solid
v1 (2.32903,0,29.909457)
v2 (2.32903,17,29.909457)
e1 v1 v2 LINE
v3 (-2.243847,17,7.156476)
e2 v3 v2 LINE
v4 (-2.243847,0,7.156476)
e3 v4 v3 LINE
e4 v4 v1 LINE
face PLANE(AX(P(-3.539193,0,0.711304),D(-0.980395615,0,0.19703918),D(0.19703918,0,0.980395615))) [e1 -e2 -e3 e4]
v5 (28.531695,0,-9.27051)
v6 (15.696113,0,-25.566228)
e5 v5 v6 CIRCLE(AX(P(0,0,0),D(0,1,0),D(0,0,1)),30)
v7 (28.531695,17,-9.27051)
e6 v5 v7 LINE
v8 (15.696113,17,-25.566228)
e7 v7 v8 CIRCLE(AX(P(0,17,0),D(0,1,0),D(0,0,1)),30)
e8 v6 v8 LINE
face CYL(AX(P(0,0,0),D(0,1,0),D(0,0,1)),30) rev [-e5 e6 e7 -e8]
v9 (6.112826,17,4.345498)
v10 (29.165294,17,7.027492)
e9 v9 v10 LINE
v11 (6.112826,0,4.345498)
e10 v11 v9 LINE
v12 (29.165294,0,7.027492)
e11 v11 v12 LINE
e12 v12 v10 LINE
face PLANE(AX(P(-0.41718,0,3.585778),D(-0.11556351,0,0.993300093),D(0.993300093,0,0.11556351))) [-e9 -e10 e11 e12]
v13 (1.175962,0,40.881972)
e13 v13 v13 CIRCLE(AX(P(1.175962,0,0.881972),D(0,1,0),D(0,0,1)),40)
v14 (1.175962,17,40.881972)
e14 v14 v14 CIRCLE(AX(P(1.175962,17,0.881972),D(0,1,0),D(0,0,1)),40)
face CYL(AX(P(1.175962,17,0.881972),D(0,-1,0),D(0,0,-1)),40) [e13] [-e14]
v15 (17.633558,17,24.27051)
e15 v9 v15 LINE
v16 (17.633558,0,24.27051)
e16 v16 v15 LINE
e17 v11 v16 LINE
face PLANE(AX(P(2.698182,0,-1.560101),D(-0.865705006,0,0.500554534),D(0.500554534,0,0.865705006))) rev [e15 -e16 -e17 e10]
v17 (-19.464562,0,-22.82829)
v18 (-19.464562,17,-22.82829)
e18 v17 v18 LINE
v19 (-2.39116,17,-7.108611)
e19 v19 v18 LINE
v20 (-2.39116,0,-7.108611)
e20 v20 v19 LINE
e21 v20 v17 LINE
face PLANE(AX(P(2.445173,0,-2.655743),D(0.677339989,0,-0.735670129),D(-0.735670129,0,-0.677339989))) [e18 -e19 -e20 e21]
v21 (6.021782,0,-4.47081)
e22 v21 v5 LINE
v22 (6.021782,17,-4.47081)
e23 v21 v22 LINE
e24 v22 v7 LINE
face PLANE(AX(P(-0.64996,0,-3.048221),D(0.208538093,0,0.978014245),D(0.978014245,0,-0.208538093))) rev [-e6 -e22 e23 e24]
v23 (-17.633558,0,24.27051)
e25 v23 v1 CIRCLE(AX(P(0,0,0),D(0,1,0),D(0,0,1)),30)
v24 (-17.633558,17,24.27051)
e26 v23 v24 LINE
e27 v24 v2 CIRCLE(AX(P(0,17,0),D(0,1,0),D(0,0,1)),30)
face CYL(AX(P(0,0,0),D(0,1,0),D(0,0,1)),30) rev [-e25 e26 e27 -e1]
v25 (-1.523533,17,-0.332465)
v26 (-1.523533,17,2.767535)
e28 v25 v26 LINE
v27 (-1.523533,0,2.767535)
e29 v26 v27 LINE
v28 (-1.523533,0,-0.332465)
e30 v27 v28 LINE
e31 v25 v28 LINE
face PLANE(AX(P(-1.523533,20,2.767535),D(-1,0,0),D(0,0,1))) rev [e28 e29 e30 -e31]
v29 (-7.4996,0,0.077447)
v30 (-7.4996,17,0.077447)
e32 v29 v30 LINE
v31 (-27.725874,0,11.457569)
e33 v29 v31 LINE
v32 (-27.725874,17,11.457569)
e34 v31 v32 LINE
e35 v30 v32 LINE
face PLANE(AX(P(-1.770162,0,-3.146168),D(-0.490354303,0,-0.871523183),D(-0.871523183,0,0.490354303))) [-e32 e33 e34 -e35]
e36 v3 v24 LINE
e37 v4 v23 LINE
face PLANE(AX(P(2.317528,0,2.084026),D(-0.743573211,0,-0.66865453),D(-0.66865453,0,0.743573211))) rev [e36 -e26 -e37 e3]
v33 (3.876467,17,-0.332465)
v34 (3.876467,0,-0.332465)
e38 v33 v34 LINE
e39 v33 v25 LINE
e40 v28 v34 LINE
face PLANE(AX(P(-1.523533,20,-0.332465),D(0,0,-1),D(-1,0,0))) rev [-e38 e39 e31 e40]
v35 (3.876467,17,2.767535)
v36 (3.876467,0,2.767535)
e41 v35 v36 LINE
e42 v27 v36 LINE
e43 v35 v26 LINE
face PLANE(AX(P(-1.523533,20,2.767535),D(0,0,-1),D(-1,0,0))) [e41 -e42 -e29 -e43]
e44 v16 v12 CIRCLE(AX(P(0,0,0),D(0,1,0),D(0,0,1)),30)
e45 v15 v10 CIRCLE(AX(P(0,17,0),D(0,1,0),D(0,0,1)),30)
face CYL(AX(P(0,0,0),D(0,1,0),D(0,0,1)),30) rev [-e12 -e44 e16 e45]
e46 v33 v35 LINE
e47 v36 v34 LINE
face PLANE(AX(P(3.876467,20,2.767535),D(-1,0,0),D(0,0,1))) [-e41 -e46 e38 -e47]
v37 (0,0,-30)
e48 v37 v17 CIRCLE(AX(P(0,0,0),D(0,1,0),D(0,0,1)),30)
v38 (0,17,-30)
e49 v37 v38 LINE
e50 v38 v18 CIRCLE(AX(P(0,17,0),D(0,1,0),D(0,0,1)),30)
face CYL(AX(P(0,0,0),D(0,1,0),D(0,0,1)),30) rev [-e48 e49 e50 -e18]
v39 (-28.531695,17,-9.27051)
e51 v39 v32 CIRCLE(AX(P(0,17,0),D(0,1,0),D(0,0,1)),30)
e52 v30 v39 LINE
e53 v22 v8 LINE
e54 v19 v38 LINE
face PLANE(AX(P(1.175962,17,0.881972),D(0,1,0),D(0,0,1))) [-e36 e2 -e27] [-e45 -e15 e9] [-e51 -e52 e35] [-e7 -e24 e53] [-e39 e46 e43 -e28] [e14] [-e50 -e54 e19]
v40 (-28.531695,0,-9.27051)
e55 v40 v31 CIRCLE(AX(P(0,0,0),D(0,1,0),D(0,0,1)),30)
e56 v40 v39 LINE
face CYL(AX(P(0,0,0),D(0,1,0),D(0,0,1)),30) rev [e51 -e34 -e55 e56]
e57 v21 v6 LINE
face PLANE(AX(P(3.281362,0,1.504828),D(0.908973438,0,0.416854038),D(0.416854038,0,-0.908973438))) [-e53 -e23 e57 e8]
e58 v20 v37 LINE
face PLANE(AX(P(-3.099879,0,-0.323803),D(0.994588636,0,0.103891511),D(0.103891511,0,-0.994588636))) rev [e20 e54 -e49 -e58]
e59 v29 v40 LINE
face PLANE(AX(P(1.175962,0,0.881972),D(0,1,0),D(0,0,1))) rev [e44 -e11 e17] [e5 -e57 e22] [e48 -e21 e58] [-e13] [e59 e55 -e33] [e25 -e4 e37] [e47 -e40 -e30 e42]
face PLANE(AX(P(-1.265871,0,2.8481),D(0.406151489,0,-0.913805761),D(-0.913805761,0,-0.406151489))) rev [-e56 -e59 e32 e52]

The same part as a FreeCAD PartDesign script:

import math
import FreeCAD as App
import Part
import Sketcher
from FreeCAD import Vector

doc = App.newDocument("Part")
body = doc.addObject("PartDesign::Body", "Body")

# Sketch on XZ plane
sketch1 = body.newObject("Sketcher::SketchObject", "Sketch")
sketch1.AttachmentSupport = (doc.getObject("XZ_Plane"), [""])
sketch1.MapMode = "FlatFace"
sketch1.addGeometry(Part.Circle(Vector(1, 1, 0), Vector(0, 0, 1), 40), False)
sketch1.addConstraint([
    Sketcher.Constraint("Diameter", 0, 80.0),
    Sketcher.Constraint("DistanceY", -1, 1, 0, 3, 0.881972),
    Sketcher.Constraint("DistanceX", -1, 1, 0, 3, 1.175962),
])
pad1 = body.newObject("PartDesign::Pad", "Pad")
pad1.Profile = sketch1
pad1.Length = 17
pad1.Reversed = True

# Sketch on XZ plane
sketch2 = body.newObject("Sketcher::SketchObject", "Sketch001")
sketch2.AttachmentSupport = (doc.getObject("XZ_Plane"), [""])
sketch2.MapMode = "FlatFace"
sketch2.AttachmentOffset = App.Placement(Vector(0, 0, -17), App.Rotation())
sketch2.addGeometry([
    Part.LineSegment(Vector(-19, -23, 0), Vector(-2, -7, 0)),  # 0
    Part.LineSegment(Vector(-2, -7, 0), Vector(0, -30, 0)),  # 1
    Part.ArcOfCircle(Part.Circle(Vector(0, 0, 0), Vector(0, 0, 1), 30), math.radians(-130), math.radians(-90)),  # 2
    Part.ArcOfCircle(Part.Circle(Vector(0, 0, 0), Vector(0, 0, 1), 30), math.radians(-58), math.radians(-18)),  # 3
    Part.LineSegment(Vector(16, -26, 0), Vector(6, -4, 0)),  # 4
    Part.LineSegment(Vector(6, -4, 0), Vector(29, -9, 0)),  # 5
    Part.ArcOfCircle(Part.Circle(Vector(0, 0, 0), Vector(0, 0, 1), 30), math.radians(14), math.radians(54)),  # 6
    Part.LineSegment(Vector(29, 7, 0), Vector(6, 4, 0)),  # 7
    Part.LineSegment(Vector(6, 4, 0), Vector(18, 24, 0)),  # 8
    Part.LineSegment(Vector(-2, 7, 0), Vector(-18, 24, 0)),  # 9
    Part.ArcOfCircle(Part.Circle(Vector(0, 0, 0), Vector(0, 0, 1), 30), math.radians(86), math.radians(126)),  # 10
    Part.LineSegment(Vector(2, 30, 0), Vector(-2, 7, 0)),  # 11
    Part.LineSegment(Vector(-7, 0, 0), Vector(-29, -9, 0)),  # 12
    Part.ArcOfCircle(Part.Circle(Vector(0, 0, 0), Vector(0, 0, 1), 30), math.radians(158), math.radians(198)),  # 13
    Part.LineSegment(Vector(-28, 11, 0), Vector(-7, 0, 0)),  # 14
], False)
sketch2.addConstraint([
    Sketcher.Constraint("Coincident", 0, 2, 1, 1),
    Sketcher.Constraint("Coincident", 1, 2, 2, 2),
    Sketcher.Constraint("Coincident", 2, 1, 0, 1),
    Sketcher.Constraint("Coincident", 3, 1, 4, 1),
    Sketcher.Constraint("Coincident", 4, 2, 5, 1),
    Sketcher.Constraint("Coincident", 5, 2, 3, 2),
    Sketcher.Constraint("Coincident", 6, 1, 7, 1),
    Sketcher.Constraint("Coincident", 7, 2, 8, 1),
    Sketcher.Constraint("Coincident", 8, 2, 6, 2),
    Sketcher.Constraint("Coincident", 9, 2, 10, 2),
    Sketcher.Constraint("Coincident", 10, 1, 11, 1),
    Sketcher.Constraint("Coincident", 11, 2, 9, 1),
    Sketcher.Constraint("Coincident", 12, 2, 13, 2),
    Sketcher.Constraint("Coincident", 13, 1, 14, 1),
    Sketcher.Constraint("Coincident", 14, 2, 12, 1),
    Sketcher.Constraint("Coincident", 2, 3, -1, 1),
    Sketcher.Constraint("Coincident", 3, 3, -1, 1),
    Sketcher.Constraint("Coincident", 6, 3, -1, 1),
    Sketcher.Constraint("Coincident", 10, 3, -1, 1),
    Sketcher.Constraint("Coincident", 13, 3, -1, 1),
    Sketcher.Constraint("Equal", 2, 3),
    Sketcher.Constraint("Equal", 3, 6),
    Sketcher.Constraint("Equal", 6, 10),
    Sketcher.Constraint("Equal", 10, 13),
    Sketcher.Constraint("PointOnObject", 1, 2, -2),
    Sketcher.Constraint("Horizontal", 8, 2, 9, 2),
    Sketcher.Constraint("Horizontal", 5, 2, 12, 2),
    Sketcher.Constraint("Equal", 0, 4),
    Sketcher.Constraint("Equal", 1, 5),
    Sketcher.Constraint("Equal", 4, 7),
    Sketcher.Constraint("Equal", 5, 8),
    Sketcher.Constraint("Equal", 8, 9),
    Sketcher.Constraint("Equal", 7, 11),
    Sketcher.Constraint("Equal", 9, 12),
    Sketcher.Constraint("Equal", 11, 14),
    Sketcher.Constraint("Radius", 2, 30.0),
    Sketcher.Constraint("DistanceY", 5, 2, 6, 1, 16.298001),
    Sketcher.Constraint("DistanceY", -1, 1, 7, 2, 4.345498),
    Sketcher.Constraint("DistanceX", 14, 2, -1, 1, 7.4996),
    Sketcher.Constraint("DistanceY", 5, 2, 4, 2, 4.7997),
    Sketcher.Constraint("DistanceX", 5, 2, 6, 1, 0.633598),
    Sketcher.Constraint("DistanceY", 12, 2, 0, 2, 2.161899),
    Sketcher.Constraint("Distance", 0, 23.207959),
    Sketcher.Constraint("DistanceX", 0, 2, -1, 1, 2.39116),
    Sketcher.Constraint("DistanceX", -1, 1, 10, 1, 2.32903),
])
pocket1 = body.newObject("PartDesign::Pocket", "Pocket")
pocket1.Profile = sketch2
pocket1.Length = 17
pocket1.Reversed = True

# Sketch on XZ plane
sketch3 = body.newObject("Sketcher::SketchObject", "Sketch002")
sketch3.AttachmentSupport = (doc.getObject("XZ_Plane"), [""])
sketch3.MapMode = "FlatFace"
sketch3.addGeometry([
    Part.LineSegment(Vector(3.9, -0.3, 0), Vector(3.9, 2.8, 0)),
    Part.LineSegment(Vector(3.9, 2.8, 0), Vector(-1.5, 2.8, 0)),
    Part.LineSegment(Vector(-1.5, 2.8, 0), Vector(-1.5, -0.3, 0)),
    Part.LineSegment(Vector(-1.5, -0.3, 0), Vector(3.9, -0.3, 0)),
], False)
sketch3.addConstraint([
    Sketcher.Constraint("Coincident", 0, 2, 1, 1),
    Sketcher.Constraint("Coincident", 1, 2, 2, 1),
    Sketcher.Constraint("Coincident", 2, 2, 3, 1),
    Sketcher.Constraint("Coincident", 3, 2, 0, 1),
    Sketcher.Constraint("Vertical", 0),
    Sketcher.Constraint("Horizontal", 1),
    Sketcher.Constraint("Vertical", 2),
    Sketcher.Constraint("Horizontal", 3),
    Sketcher.Constraint("DistanceX", 1, 2, 1, 1, 5.4),
    Sketcher.Constraint("DistanceY", 0, 1, 0, 2, 3.1),
    Sketcher.Constraint("DistanceX", -1, 1, 0, 2, 3.876467),
    Sketcher.Constraint("DistanceY", -1, 1, 0, 2, 2.767535),
])
pocket2 = body.newObject("PartDesign::Pocket", "Pocket001")
pocket2.Profile = sketch3
pocket2.Length = 20

doc.recompute()
